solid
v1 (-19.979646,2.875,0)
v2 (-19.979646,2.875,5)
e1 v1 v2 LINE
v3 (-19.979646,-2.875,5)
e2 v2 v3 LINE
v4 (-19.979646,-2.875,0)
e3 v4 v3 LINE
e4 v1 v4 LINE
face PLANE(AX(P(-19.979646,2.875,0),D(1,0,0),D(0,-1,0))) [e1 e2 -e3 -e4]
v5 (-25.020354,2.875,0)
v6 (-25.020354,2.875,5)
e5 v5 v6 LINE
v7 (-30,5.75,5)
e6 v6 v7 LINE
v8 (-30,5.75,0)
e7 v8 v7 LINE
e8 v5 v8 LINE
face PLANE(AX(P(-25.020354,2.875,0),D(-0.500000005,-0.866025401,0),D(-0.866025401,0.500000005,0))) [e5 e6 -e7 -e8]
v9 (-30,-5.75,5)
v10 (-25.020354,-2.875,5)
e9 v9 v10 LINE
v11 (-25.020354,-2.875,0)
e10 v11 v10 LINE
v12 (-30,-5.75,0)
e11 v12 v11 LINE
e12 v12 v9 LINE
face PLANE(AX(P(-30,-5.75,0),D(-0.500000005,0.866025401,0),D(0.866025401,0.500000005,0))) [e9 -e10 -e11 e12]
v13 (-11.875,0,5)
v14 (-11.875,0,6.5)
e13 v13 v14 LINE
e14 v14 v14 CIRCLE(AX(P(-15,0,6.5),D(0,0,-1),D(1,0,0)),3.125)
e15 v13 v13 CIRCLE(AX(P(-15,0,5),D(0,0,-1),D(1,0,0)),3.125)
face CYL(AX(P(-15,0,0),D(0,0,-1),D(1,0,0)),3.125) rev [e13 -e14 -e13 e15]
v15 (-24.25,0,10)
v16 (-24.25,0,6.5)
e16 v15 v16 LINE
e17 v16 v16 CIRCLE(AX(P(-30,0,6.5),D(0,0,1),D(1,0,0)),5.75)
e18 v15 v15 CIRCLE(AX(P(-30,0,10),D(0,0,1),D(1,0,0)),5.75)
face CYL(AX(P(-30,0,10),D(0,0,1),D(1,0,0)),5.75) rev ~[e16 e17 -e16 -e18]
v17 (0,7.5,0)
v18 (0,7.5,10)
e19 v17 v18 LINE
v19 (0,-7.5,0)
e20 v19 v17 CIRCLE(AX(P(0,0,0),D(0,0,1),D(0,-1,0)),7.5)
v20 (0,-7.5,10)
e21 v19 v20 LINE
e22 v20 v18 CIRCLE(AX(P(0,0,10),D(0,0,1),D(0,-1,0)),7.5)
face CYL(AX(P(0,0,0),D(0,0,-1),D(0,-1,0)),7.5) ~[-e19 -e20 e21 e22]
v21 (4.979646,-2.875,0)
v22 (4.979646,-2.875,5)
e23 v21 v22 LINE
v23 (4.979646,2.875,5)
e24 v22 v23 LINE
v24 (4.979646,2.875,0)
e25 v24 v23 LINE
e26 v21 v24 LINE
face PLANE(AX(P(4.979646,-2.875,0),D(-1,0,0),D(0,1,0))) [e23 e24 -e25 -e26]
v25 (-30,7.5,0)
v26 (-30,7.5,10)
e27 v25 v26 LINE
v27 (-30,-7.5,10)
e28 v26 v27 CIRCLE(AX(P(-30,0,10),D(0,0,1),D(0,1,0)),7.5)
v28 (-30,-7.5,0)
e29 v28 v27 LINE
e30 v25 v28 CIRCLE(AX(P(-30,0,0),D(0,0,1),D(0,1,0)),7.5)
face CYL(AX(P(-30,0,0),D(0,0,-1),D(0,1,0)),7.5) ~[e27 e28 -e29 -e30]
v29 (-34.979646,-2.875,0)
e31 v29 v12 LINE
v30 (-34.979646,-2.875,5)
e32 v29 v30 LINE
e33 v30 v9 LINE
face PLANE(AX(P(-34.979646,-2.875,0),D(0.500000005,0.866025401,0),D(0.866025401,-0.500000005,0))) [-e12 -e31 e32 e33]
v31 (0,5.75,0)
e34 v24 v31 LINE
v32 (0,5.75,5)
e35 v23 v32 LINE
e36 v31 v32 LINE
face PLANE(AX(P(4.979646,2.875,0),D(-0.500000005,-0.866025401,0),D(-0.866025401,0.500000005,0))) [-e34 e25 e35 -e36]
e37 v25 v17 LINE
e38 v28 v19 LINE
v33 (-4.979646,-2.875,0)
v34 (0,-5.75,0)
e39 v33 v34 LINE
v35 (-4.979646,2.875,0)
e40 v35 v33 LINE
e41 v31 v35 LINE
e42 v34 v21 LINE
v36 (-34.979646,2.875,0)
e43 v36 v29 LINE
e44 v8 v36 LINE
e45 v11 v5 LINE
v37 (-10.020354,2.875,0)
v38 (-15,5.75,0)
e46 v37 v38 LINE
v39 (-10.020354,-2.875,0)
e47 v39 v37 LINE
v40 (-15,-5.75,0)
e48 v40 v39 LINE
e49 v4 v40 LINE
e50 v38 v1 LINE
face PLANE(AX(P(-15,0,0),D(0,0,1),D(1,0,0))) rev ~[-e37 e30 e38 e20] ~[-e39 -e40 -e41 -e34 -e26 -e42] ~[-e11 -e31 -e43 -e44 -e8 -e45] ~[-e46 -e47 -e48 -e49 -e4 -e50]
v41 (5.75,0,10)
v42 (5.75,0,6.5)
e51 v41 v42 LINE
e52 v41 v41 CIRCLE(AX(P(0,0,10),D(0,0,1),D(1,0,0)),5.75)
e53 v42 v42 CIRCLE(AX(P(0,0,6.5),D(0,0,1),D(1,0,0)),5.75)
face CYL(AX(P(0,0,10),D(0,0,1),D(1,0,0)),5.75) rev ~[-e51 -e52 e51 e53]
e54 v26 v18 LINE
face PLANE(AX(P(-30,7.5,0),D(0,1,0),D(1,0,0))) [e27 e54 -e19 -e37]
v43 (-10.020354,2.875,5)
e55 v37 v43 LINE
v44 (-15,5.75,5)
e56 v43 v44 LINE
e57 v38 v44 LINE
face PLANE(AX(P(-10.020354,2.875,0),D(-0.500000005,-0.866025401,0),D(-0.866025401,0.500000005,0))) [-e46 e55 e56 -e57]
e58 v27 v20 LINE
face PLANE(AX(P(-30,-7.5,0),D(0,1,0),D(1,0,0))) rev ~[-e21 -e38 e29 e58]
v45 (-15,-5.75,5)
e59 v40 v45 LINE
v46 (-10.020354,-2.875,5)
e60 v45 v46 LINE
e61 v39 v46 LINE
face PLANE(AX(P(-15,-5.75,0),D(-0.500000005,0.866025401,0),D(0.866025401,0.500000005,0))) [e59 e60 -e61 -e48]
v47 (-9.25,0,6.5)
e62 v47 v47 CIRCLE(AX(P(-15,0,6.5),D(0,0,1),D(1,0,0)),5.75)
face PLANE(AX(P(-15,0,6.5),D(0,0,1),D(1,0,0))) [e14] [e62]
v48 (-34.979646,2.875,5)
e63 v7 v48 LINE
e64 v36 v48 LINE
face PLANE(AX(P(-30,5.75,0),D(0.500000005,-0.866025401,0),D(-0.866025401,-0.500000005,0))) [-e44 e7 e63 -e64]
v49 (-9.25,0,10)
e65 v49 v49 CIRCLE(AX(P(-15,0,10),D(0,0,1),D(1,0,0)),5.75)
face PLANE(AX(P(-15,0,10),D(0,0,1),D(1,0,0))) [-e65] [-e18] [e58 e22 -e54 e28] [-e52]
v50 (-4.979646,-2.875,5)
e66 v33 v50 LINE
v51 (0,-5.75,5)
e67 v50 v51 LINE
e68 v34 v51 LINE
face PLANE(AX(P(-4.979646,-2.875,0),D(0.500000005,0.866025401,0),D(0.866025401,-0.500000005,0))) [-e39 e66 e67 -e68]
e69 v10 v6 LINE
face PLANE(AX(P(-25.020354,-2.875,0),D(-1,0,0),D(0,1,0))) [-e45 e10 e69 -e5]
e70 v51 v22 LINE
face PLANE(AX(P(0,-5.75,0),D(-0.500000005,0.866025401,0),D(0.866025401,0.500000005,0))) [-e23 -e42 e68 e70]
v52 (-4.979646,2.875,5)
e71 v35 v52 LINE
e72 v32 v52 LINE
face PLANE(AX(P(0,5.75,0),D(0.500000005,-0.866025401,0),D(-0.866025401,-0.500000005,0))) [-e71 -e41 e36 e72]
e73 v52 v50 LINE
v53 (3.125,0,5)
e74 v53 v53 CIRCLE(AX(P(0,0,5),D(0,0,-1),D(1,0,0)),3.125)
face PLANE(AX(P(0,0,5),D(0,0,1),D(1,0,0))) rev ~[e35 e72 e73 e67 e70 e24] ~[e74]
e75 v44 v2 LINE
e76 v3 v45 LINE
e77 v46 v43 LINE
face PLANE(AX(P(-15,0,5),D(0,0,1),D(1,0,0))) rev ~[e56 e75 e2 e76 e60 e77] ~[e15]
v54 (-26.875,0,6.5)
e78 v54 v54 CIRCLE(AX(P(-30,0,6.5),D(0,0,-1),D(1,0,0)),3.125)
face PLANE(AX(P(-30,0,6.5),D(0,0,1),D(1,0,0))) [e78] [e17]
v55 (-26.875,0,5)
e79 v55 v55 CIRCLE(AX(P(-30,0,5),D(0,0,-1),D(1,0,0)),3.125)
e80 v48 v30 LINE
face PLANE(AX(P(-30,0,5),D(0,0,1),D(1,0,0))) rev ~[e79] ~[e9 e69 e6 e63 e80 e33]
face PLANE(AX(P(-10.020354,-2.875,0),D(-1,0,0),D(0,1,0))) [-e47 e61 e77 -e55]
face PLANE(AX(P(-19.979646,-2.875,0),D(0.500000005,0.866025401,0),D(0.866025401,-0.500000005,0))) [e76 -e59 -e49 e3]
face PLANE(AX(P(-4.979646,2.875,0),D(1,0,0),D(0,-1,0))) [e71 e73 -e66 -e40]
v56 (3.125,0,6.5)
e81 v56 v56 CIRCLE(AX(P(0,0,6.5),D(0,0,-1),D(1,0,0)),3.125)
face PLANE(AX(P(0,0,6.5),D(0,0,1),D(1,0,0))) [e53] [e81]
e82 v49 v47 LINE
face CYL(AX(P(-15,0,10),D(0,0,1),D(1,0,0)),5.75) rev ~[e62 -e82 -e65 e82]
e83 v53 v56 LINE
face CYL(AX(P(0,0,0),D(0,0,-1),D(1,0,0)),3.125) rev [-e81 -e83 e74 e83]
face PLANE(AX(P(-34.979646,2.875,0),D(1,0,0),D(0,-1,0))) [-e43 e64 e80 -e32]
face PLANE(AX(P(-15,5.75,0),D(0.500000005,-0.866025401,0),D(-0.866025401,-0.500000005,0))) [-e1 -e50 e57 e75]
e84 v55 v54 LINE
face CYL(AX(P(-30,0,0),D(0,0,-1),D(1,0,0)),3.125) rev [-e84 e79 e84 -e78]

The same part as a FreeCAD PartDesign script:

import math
import FreeCAD as App
import Part
import Sketcher
from FreeCAD import Vector
Q = App.Units.Quantity


def add_polygon(sketch, points):
    """Adds a closed chain of lines whose ends are joined by coincident constraints."""
    first, n = sketch.GeometryCount, len(points)
    for a, b in zip(points, points[1:] + points[:1]):
        sketch.addGeometry(Part.LineSegment(App.Vector(*a, 0), App.Vector(*b, 0)), False)
    for i in range(n):
        sketch.addConstraint(Sketcher.Constraint("Coincident", first + i, 2, first + (i + 1) % n, 1))

doc = App.newDocument("Part")
body = doc.addObject("PartDesign::Body", "Body")

# Sketch on XY plane
sketch1 = body.newObject("Sketcher::SketchObject", "Sketch")
sketch1.AttachmentSupport = (doc.getObject("XY_Plane"), [""])
sketch1.MapMode = "FlatFace"
sketch1.addGeometry([
    Part.ArcOfCircle(Part.Circle(Vector(-30, 0, 0), Vector(0, 0, 1), 8), math.radians(90), math.radians(270)),
    Part.LineSegment(Vector(-30, -8, 0), Vector(0, -8, 0)),
    Part.ArcOfCircle(Part.Circle(Vector(0, 0, 0), Vector(0, 0, 1), 8), math.radians(-90), math.radians(90)),
    Part.LineSegment(Vector(0, 8, 0), Vector(-30, 8, 0)),
], False)
sketch1.addConstraint([
    Sketcher.Constraint("Tangent", 0, 2, 1, 1),
    Sketcher.Constraint("Tangent", 1, 2, 2, 1),
    Sketcher.Constraint("Tangent", 2, 2, 3, 1),
    Sketcher.Constraint("Tangent", 3, 2, 0, 1),
    Sketcher.Constraint("Horizontal", 1),
    Sketcher.Constraint("Horizontal", 3),
    Sketcher.Constraint("Coincident", 2, 3, -1, 1),
    Sketcher.Constraint("Radius", 0, Q("7.5 mm")),
    Sketcher.Constraint("DistanceX", 1, 1, 1, 2, Q("30 mm")),
])
pad1 = body.newObject("PartDesign::Pad", "Pad")
pad1.Profile = sketch1
pad1.Length = 10

# Sketch on XY plane
sketch2 = body.newObject("Sketcher::SketchObject", "Sketch001")
sketch2.AttachmentSupport = (doc.getObject("XY_Plane"), [""])
sketch2.MapMode = "FlatFace"
sketch2.addGeometry([
    Part.Circle(Vector(-15, 0, 0), Vector(0, 0, 1), 3.1),
    Part.Circle(Vector(0, 0, 0), Vector(0, 0, 1), 3.1),
    Part.Circle(Vector(-30, 0, 0), Vector(0, 0, 1), 3.1),
], False)
sketch2.addConstraint([
    Sketcher.Constraint("Coincident", 1, 3, -1, 1),
    Sketcher.Constraint("Equal", 0, 1),
    Sketcher.Constraint("Equal", 1, 2),
    Sketcher.Constraint("PointOnObject", 0, 3, -1),
    Sketcher.Constraint("PointOnObject", 2, 3, -1),
    Sketcher.Constraint("Diameter", 0, Q("6.25 mm")),
    Sketcher.Constraint("DistanceX", 0, 3, -1, 1, Q("15 mm")),
    Sketcher.Constraint("DistanceX", 2, 3, -1, 1, Q("30 mm")),
])
pocket1 = body.newObject("PartDesign::Pocket", "Pocket")
pocket1.Profile = sketch2
pocket1.Type = "ThroughAll"
pocket1.Reversed = True

# Sketch on XY plane
sketch3 = body.newObject("Sketcher::SketchObject", "Sketch002")
sketch3.AttachmentSupport = (doc.getObject("XY_Plane"), [""])
sketch3.MapMode = "FlatFace"
sketch3.AttachmentOffset = App.Placement(Vector(0, 0, 10), App.Rotation())
sketch3.addGeometry([
    Part.Circle(Vector(-15, 0, 0), Vector(0, 0, 1), 6),
    Part.Circle(Vector(-30, 0, 0), Vector(0, 0, 1), 6),
    Part.Circle(Vector(0, 0, 0), Vector(0, 0, 1), 6),
], False)
sketch3.addConstraint([
    Sketcher.Constraint("Coincident", 2, 3, -1, 1),
    Sketcher.Constraint("Equal", 0, 1),
    Sketcher.Constraint("Equal", 1, 2),
    Sketcher.Constraint("PointOnObject", 0, 3, -1),
    Sketcher.Constraint("PointOnObject", 1, 3, -1),
    Sketcher.Constraint("Diameter", 0, Q("11.5 mm")),
    Sketcher.Constraint("DistanceX", 0, 3, -1, 1, Q("15 mm")),
    Sketcher.Constraint("DistanceX", 1, 3, -1, 1, Q("30 mm")),
])
pocket2 = body.newObject("PartDesign::Pocket", "Pocket001")
pocket2.Profile = sketch3
pocket2.Length = 3.5

# Sketch on XY plane
sketch4 = body.newObject("Sketcher::SketchObject", "Sketch003")
sketch4.AttachmentSupport = (doc.getObject("XY_Plane"), [""])
sketch4.MapMode = "FlatFace"
add_polygon(sketch4, [(5, -3), (5, 3), (0, 6), (-5, 3), (-5, -3), (0, -6)])  # lines 0-5
add_polygon(sketch4, [(-25, -3), (-25, 3), (-30, 6), (-35, 3), (-35, -3), (-30, -6)])  # lines 6-11
add_polygon(sketch4, [(-10, -3), (-10, 3), (-15, 6), (-20, 3), (-20, -3), (-15, -6)])  # lines 12-17
sketch4.addConstraint([
    Sketcher.Constraint("Vertical", 0),
    Sketcher.Constraint("Vertical", 3),
    Sketcher.Constraint("Vertical", 6),
    Sketcher.Constraint("Vertical", 9),
    Sketcher.Constraint("Vertical", 12),
    Sketcher.Constraint("Vertical", 15),
    Sketcher.Constraint("Symmetric", 0, 2, 3, 2, -1, 1),
    Sketcher.Constraint("Symmetric", 1, 2, 4, 2, -1, 1),
    Sketcher.Constraint("Symmetric", 7, 2, 10, 2, -1),
    Sketcher.Constraint("Symmetric", 13, 2, 16, 2, -1),
    Sketcher.Constraint("PointOnObject", 1, 2, -2),
    Sketcher.Constraint("Parallel", 2, 5),
    Sketcher.Constraint("Parallel", 4, 7),
    Sketcher.Constraint("Parallel", 5, 8),
    Sketcher.Constraint("Parallel", 7, 10),
    Sketcher.Constraint("Parallel", 8, 11),
    Sketcher.Constraint("Parallel", 10, 13),
    Sketcher.Constraint("Parallel", 11, 14),
    Sketcher.Constraint("Parallel", 13, 16),
    Sketcher.Constraint("Parallel", 14, 17),
    Sketcher.Constraint("Horizontal", 0, 2, 2, 2),
    Sketcher.Constraint("Horizontal", 2, 2, 6, 2),
    Sketcher.Constraint("Horizontal", 1, 2, 7, 2),
    Sketcher.Constraint("Horizontal", 6, 2, 8, 2),
    Sketcher.Constraint("Horizontal", 8, 2, 12, 2),
    Sketcher.Constraint("Horizontal", 7, 2, 13, 2),
    Sketcher.Constraint("Horizontal", 12, 2, 14, 2),
    Sketcher.Constraint("Angle", 1, Q("150 deg")),
    Sketcher.Constraint("DistanceX", 7, 2, -1, 1, Q("30 mm")),
    Sketcher.Constraint("DistanceX", 13, 2, -1, 1, Q("15 mm")),
    Sketcher.Constraint("DistanceY", 0, 1, 0, 2, Q("5.75 mm")),
    Sketcher.Constraint("DistanceY", 4, 2, 1, 2, Q("11.5 mm")),
])
pocket3 = body.newObject("PartDesign::Pocket", "Pocket002")
pocket3.Profile = sketch4
pocket3.Length = 5
pocket3.Reversed = True

doc.recompute()
